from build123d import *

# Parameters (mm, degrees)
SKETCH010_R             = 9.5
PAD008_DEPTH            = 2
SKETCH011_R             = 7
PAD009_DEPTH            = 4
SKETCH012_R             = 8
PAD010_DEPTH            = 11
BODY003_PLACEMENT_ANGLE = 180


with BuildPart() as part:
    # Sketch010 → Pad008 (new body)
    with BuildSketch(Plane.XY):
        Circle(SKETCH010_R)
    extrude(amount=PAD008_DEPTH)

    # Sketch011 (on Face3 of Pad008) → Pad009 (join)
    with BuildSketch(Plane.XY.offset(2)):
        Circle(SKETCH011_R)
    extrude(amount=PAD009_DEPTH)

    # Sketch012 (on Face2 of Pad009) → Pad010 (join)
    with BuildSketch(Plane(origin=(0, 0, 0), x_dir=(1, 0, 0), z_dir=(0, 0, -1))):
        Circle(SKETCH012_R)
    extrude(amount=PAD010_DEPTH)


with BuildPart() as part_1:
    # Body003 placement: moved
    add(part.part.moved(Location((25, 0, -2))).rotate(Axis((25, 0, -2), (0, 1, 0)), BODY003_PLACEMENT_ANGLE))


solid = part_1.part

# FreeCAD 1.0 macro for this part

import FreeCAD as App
import Part
import Sketcher

V = App.Vector
Q = App.Units.Quantity

doc = App.newDocument("Part")
params = doc.addObject("Spreadsheet::Sheet", "Params")
for row, (alias, value) in enumerate([
    ("sketch1_diameter", "19 mm"),
    ("pad1_length", "2 mm"),
    ("sketch2_diameter", "14 mm"),
    ("pad2_length", "4 mm"),
    ("sketch3_diameter", "16 mm"),
    ("pad3_length", "11 mm"),
], start=1):
    params.set(f"A{row}", alias)
    params.set(f"B{row}", "=" + value)
    params.setAlias(f"B{row}", alias)

body = doc.addObject("PartDesign::Body", "Body")

# Sketch on XY plane
sketch1 = doc.addObject("Sketcher::SketchObject", "Sketch")
body.addObject(sketch1)
sketch1.AttachmentSupport = (doc.XY_Plane, [""])
sketch1.MapMode = "FlatFace"
sketch1.addGeometry(Part.Circle(V(0, 0, 0), V(0, 0, 1), 10), False)
sketch1.addConstraint(Sketcher.Constraint("Coincident", 0, 3, -1, 1))
sketch1.addConstraint(Sketcher.Constraint("Diameter", 0, Q("19 mm")))
sketch1.setExpression("Constraints[1]", "Params.sketch1_diameter")
pad1 = doc.addObject("PartDesign::Pad", "Pad")
body.addObject(pad1)
pad1.Profile = sketch1
pad1.setExpression("Length", "Params.pad1_length")

# Sketch on XY plane
sketch2 = doc.addObject("Sketcher::SketchObject", "Sketch001")
body.addObject(sketch2)
sketch2.AttachmentSupport = (doc.XY_Plane, [""])
sketch2.MapMode = "FlatFace"
sketch2.AttachmentOffset = App.Placement(V(0, 0, 2), App.Rotation())
sketch2.addGeometry(Part.Circle(V(0, 0, 0), V(0, 0, 1), 7), False)
sketch2.addConstraint(Sketcher.Constraint("Coincident", 0, 3, -1, 1))
sketch2.addConstraint(Sketcher.Constraint("Diameter", 0, Q("14 mm")))
sketch2.setExpression("Constraints[1]", "Params.sketch2_diameter")
pad2 = doc.addObject("PartDesign::Pad", "Pad001")
body.addObject(pad2)
pad2.Profile = sketch2
pad2.setExpression("Length", "Params.pad2_length")

# Sketch on XY plane
sketch3 = doc.addObject("Sketcher::SketchObject", "Sketch002")
body.addObject(sketch3)
sketch3.AttachmentSupport = (doc.XY_Plane, [""])
sketch3.MapMode = "FlatFace"
sketch3.addGeometry(Part.Circle(V(0, 0, 0), V(0, 0, 1), 8), False)
sketch3.addConstraint(Sketcher.Constraint("Coincident", 0, 3, -1, 1))
sketch3.addConstraint(Sketcher.Constraint("Diameter", 0, Q("16 mm")))
sketch3.setExpression("Constraints[1]", "Params.sketch3_diameter")
pad3 = doc.addObject("PartDesign::Pad", "Pad002")
body.addObject(pad3)
pad3.Profile = sketch3
pad3.setExpression("Length", "Params.pad3_length")
pad3.Reversed = True
body2 = doc.addObject("PartDesign::Body", "Body001")
doc.recompute()

body.Placement = App.Placement(V(25, 0, -2), App.Rotation(V(0, 1, 0), 180))
boolean = doc.addObject("PartDesign::Boolean", "Boolean")
body2.addObject(boolean)
boolean.Type = "Fuse"
boolean.addObjects([body])

doc.recompute()
